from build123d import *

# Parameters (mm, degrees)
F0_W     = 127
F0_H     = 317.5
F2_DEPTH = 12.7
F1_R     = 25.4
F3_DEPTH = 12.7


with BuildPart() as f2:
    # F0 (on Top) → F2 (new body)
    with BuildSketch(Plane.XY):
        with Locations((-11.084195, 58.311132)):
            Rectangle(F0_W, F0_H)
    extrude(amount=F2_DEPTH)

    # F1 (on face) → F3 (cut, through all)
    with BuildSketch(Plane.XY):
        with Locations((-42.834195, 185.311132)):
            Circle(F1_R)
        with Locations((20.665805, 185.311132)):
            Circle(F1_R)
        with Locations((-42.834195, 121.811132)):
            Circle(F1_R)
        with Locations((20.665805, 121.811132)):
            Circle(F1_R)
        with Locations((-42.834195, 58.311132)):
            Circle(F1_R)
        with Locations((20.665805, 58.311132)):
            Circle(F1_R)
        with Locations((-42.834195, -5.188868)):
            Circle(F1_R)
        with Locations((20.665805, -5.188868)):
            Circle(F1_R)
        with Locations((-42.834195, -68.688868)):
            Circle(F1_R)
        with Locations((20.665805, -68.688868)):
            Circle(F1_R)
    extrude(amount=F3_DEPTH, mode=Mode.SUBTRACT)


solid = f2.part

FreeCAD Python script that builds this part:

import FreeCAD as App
import Part
import Sketcher

V = App.Vector
Q = App.Units.Quantity

doc = App.newDocument("Part")
params = doc.addObject("Spreadsheet::Sheet", "Params")
for row, (alias, value) in enumerate([
    ("sketch1_width", "5 in"),
    ("sketch1_height", "12.5 in"),
    ("pad1_length", "0.5 in"),
    ("sketch2_diameter", "2 in"),
], start=1):
    params.set(f"A{row}", alias)
    params.set(f"B{row}", "=" + value)
    params.setAlias(f"B{row}", alias)

body = doc.addObject("PartDesign::Body", "Body")

sketch1 = body.newObject("Sketcher::SketchObject", "Sketch")
sketch1.AttachmentSupport = (doc.getObject("XY_Plane"), [""])
sketch1.MapMode = "FlatFace"
sketch1.addGeometry([
    Part.LineSegment(V(-75, 217, 0), V(-75, -100, 0)),
    Part.LineSegment(V(-75, -100, 0), V(52, -100, 0)),
    Part.LineSegment(V(52, -100, 0), V(52, 217, 0)),
    Part.LineSegment(V(52, 217, 0), V(-75, 217, 0)),
], False)
sketch1.addConstraint([
    Sketcher.Constraint("Coincident", 0, 2, 1, 1),
    Sketcher.Constraint("Coincident", 1, 2, 2, 1),
    Sketcher.Constraint("Coincident", 2, 2, 3, 1),
    Sketcher.Constraint("Coincident", 3, 2, 0, 1),
    Sketcher.Constraint("Vertical", 0),
    Sketcher.Constraint("Horizontal", 1),
    Sketcher.Constraint("Vertical", 2),
    Sketcher.Constraint("Horizontal", 3),
    Sketcher.Constraint("DistanceX", 1, 1, 1, 2, Q("5 in")),
    Sketcher.Constraint("DistanceY", 0, 2, 0, 1, Q("12.5 in")),
    Sketcher.Constraint("DistanceY", 0, 2, -1, 1, Q("100.438868 mm")),
    Sketcher.Constraint("DistanceX", 0, 2, -1, 1, Q("74.584195 mm")),
])
sketch1.setExpression("Constraints[8]", "Params.sketch1_width")
sketch1.setExpression("Constraints[9]", "Params.sketch1_height")
pad1 = body.newObject("PartDesign::Pad", "Pad")
pad1.Profile = sketch1
pad1.setExpression("Length", "Params.pad1_length")

sketch2 = body.newObject("Sketcher::SketchObject", "Sketch001")
sketch2.AttachmentSupport = (doc.getObject("XY_Plane"), [""])
sketch2.MapMode = "FlatFace"
sketch2.addGeometry([
    Part.Circle(V(-43, 185, 0), V(0, 0, 1), 25),
    Part.Circle(V(21, 185, 0), V(0, 0, 1), 25),
    Part.Circle(V(-43, 122, 0), V(0, 0, 1), 25),
    Part.Circle(V(21, 122, 0), V(0, 0, 1), 25),
    Part.Circle(V(-43, 58, 0), V(0, 0, 1), 25),
    Part.Circle(V(21, 58, 0), V(0, 0, 1), 25),
    Part.Circle(V(-43, -5, 0), V(0, 0, 1), 25),
    Part.Circle(V(21, -5, 0), V(0, 0, 1), 25),
    Part.Circle(V(-43, -69, 0), V(0, 0, 1), 25),
    Part.Circle(V(21, -69, 0), V(0, 0, 1), 25),
], False)
sketch2.addConstraint([
    Sketcher.Constraint("Equal", 0, 1),
    Sketcher.Constraint("Equal", 1, 2),
    Sketcher.Constraint("Equal", 2, 3),
    Sketcher.Constraint("Equal", 3, 4),
    Sketcher.Constraint("Equal", 4, 5),
    Sketcher.Constraint("Equal", 5, 6),
    Sketcher.Constraint("Equal", 6, 7),
    Sketcher.Constraint("Equal", 7, 8),
    Sketcher.Constraint("Equal", 8, 9),
    Sketcher.Constraint("Horizontal", 0, 3, 1, 3),
    Sketcher.Constraint("Horizontal", 2, 3, 3, 3),
    Sketcher.Constraint("Horizontal", 4, 3, 5, 3),
    Sketcher.Constraint("Horizontal", 6, 3, 7, 3),
    Sketcher.Constraint("Horizontal", 8, 3, 9, 3),
    Sketcher.Constraint("Vertical", 0, 3, 2, 3),
    Sketcher.Constraint("Vertical", 1, 3, 3, 3),
    Sketcher.Constraint("Vertical", 2, 3, 4, 3),
    Sketcher.Constraint("Vertical", 3, 3, 5, 3),
    Sketcher.Constraint("Vertical", 4, 3, 6, 3),
    Sketcher.Constraint("Vertical", 5, 3, 7, 3),
    Sketcher.Constraint("Vertical", 6, 3, 8, 3),
    Sketcher.Constraint("Vertical", 7, 3, 9, 3),
    Sketcher.Constraint("Diameter", 0, Q("2 in")),
    Sketcher.Constraint("DistanceY", 4, 3, 0, 3, Q("5 in")),
    Sketcher.Constraint("DistanceY", 6, 3, 2, 3, Q("5 in")),
    Sketcher.Constraint("DistanceY", 8, 3, 4, 3, Q("5 in")),
    Sketcher.Constraint("DistanceX", 0, 3, 1, 3, Q("2.5 in")),
    Sketcher.Constraint("DistanceY", 2, 3, 0, 3, Q("2.5 in")),
    Sketcher.Constraint("DistanceY", -1, 1, 0, 3, Q("185.311132 mm")),
    Sketcher.Constraint("DistanceX", 0, 3, -1, 1, Q("42.834195 mm")),
])
sketch2.setExpression("Constraints[22]", "Params.sketch2_diameter")
pocket1 = body.newObject("PartDesign::Pocket", "Pocket")
pocket1.Profile = sketch2
pocket1.Type = "ThroughAll"
pocket1.Reversed = True

doc.recompute()
